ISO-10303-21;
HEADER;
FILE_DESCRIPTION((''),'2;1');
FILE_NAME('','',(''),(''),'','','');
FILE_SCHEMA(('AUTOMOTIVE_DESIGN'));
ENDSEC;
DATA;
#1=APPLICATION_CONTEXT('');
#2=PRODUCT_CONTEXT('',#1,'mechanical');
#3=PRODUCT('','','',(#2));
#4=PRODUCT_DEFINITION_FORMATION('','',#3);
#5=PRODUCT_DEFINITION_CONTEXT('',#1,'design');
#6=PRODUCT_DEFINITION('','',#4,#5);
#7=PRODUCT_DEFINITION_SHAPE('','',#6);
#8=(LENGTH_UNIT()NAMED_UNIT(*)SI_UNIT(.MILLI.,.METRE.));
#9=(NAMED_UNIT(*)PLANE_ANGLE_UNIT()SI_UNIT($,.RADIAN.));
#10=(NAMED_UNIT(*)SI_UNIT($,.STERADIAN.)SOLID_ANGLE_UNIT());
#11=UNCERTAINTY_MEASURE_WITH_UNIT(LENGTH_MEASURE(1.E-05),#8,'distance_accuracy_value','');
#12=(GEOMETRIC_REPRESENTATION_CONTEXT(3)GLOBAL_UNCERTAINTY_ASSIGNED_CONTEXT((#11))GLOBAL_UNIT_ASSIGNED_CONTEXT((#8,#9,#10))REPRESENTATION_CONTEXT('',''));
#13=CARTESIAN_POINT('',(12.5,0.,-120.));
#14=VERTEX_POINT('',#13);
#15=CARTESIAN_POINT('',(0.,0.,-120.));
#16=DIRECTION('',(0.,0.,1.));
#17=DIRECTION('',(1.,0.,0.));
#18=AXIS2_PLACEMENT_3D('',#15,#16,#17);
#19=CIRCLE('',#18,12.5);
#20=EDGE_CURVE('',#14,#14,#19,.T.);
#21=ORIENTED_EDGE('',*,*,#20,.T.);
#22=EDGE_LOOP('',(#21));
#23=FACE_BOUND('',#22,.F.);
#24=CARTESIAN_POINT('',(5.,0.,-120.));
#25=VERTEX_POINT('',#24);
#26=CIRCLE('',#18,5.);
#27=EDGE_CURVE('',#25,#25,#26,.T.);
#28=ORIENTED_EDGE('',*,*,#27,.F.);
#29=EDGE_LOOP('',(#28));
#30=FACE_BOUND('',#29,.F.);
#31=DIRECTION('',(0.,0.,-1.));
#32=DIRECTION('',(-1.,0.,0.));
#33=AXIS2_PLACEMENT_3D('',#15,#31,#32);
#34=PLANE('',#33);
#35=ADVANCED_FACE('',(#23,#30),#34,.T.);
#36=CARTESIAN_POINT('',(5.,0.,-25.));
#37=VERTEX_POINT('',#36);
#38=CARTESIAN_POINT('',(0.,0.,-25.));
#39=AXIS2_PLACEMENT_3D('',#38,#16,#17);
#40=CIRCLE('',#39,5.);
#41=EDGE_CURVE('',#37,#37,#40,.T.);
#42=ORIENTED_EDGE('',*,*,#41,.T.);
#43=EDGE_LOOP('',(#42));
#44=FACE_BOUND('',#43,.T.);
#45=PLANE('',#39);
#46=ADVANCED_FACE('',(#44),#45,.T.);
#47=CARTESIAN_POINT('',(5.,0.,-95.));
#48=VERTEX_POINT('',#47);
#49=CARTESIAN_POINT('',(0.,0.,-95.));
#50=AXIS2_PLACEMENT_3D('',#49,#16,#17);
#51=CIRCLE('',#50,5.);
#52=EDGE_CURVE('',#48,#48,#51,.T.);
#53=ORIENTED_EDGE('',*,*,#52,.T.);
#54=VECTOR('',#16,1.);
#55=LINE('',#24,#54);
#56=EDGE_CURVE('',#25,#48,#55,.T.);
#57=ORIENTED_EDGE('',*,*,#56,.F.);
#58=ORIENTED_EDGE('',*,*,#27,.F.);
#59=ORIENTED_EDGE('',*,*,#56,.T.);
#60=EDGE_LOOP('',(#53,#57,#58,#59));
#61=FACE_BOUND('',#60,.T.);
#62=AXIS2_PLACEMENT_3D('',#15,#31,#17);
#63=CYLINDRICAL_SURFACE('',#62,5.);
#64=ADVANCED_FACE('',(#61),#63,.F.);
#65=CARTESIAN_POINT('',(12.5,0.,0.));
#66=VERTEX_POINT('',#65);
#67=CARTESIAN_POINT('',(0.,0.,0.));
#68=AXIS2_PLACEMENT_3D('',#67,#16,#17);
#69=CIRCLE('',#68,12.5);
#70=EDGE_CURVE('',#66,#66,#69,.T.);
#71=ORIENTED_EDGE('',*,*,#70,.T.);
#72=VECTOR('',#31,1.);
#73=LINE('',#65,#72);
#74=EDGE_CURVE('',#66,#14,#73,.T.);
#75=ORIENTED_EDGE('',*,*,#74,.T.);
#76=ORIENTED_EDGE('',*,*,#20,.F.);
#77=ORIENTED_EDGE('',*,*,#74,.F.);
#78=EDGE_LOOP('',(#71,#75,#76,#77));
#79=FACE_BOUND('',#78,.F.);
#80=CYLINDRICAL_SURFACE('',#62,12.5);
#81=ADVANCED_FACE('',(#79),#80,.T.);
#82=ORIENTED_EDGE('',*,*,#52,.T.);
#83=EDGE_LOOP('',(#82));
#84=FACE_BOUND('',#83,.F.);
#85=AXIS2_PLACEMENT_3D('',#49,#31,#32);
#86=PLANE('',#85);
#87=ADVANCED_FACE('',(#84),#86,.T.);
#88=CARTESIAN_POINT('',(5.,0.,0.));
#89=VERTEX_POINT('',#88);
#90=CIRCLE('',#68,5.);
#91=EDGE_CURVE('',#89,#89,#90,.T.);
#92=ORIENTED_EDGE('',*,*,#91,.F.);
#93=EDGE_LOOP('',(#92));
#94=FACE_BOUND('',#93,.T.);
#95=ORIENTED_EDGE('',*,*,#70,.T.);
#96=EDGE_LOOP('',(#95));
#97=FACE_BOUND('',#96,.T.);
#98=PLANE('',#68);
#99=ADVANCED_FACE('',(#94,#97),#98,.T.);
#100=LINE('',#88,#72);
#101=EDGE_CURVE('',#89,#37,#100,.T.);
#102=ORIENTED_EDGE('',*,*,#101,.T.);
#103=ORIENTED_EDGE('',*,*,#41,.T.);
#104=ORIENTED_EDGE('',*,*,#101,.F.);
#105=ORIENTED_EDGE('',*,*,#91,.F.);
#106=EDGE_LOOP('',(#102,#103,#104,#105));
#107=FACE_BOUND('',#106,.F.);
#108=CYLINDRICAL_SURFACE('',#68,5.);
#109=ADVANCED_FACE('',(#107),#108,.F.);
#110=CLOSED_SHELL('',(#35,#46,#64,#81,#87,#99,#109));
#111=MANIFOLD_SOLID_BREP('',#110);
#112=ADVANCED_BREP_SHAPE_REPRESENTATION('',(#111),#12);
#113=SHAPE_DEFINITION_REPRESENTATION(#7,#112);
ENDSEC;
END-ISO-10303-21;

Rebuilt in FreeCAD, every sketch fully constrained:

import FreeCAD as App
import Part
import Sketcher
from FreeCAD import Vector

doc = App.newDocument("Part")
params = doc.addObject("Spreadsheet::Sheet", "Params")
for row, (alias, value) in enumerate([
    ("sketch1_diameter", "25 mm"),
    ("pad1_length", "60 mm"),
    ("sketch2_diameter", "10 mm"),
    ("pocket1_length", "25 mm"),
], start=1):
    params.set(f"A{row}", alias)
    params.set(f"B{row}", "=" + value)
    params.setAlias(f"B{row}", alias)

body = doc.addObject("PartDesign::Body", "Body")

# Sketch on XY plane
sketch1 = body.newObject("Sketcher::SketchObject", "Sketch")
sketch1.AttachmentSupport = (doc.getObject("XY_Plane"), [""])
sketch1.MapMode = "FlatFace"
sketch1.addGeometry(Part.Circle(Vector(0, 0, 0), Vector(0, 0, 1), 12), False)
sketch1.addConstraint([
    Sketcher.Constraint("Coincident", 0, 3, -1, 1),
    Sketcher.Constraint("Diameter", 0, 25.0),
])
sketch1.setExpression("Constraints[1]", "Params.sketch1_diameter")
pad1 = body.newObject("PartDesign::Pad", "Pad")
pad1.Profile = sketch1
pad1.setExpression("Length", "Params.pad1_length")
pad1.Reversed = True

# Sketch on XY plane
sketch2 = body.newObject("Sketcher::SketchObject", "Sketch001")
sketch2.AttachmentSupport = (doc.getObject("XY_Plane"), [""])
sketch2.MapMode = "FlatFace"
sketch2.addGeometry(Part.Circle(Vector(0, 0, 0), Vector(0, 0, 1), 5), False)
sketch2.addConstraint([
    Sketcher.Constraint("Coincident", 0, 3, -1, 1),
    Sketcher.Constraint("Diameter", 0, 10.0),
])
sketch2.setExpression("Constraints[1]", "Params.sketch2_diameter")
pocket1 = body.newObject("PartDesign::Pocket", "Pocket")
pocket1.Profile = sketch2
pocket1.setExpression("Length", "Params.pocket1_length")
body2 = doc.addObject("PartDesign::Body", "Body001")
doc.recompute()

body2.BaseFeature = body
doc.recompute()

mirroring = doc.addObject("Part::Mirroring", "Mirroring")
mirroring.Source = body
mirroring.Base = Vector(0, 0, -60)
mirroring.Normal = Vector(0, 0, -1)
body3 = doc.addObject("PartDesign::Body", "Body002")
body3.BaseFeature = mirroring
boolean = body2.newObject("PartDesign::Boolean", "Boolean")
boolean.Type = "Fuse"
boolean.addObjects([body3])
doc.recompute()
mirroring.Visibility = False

doc.recompute()
